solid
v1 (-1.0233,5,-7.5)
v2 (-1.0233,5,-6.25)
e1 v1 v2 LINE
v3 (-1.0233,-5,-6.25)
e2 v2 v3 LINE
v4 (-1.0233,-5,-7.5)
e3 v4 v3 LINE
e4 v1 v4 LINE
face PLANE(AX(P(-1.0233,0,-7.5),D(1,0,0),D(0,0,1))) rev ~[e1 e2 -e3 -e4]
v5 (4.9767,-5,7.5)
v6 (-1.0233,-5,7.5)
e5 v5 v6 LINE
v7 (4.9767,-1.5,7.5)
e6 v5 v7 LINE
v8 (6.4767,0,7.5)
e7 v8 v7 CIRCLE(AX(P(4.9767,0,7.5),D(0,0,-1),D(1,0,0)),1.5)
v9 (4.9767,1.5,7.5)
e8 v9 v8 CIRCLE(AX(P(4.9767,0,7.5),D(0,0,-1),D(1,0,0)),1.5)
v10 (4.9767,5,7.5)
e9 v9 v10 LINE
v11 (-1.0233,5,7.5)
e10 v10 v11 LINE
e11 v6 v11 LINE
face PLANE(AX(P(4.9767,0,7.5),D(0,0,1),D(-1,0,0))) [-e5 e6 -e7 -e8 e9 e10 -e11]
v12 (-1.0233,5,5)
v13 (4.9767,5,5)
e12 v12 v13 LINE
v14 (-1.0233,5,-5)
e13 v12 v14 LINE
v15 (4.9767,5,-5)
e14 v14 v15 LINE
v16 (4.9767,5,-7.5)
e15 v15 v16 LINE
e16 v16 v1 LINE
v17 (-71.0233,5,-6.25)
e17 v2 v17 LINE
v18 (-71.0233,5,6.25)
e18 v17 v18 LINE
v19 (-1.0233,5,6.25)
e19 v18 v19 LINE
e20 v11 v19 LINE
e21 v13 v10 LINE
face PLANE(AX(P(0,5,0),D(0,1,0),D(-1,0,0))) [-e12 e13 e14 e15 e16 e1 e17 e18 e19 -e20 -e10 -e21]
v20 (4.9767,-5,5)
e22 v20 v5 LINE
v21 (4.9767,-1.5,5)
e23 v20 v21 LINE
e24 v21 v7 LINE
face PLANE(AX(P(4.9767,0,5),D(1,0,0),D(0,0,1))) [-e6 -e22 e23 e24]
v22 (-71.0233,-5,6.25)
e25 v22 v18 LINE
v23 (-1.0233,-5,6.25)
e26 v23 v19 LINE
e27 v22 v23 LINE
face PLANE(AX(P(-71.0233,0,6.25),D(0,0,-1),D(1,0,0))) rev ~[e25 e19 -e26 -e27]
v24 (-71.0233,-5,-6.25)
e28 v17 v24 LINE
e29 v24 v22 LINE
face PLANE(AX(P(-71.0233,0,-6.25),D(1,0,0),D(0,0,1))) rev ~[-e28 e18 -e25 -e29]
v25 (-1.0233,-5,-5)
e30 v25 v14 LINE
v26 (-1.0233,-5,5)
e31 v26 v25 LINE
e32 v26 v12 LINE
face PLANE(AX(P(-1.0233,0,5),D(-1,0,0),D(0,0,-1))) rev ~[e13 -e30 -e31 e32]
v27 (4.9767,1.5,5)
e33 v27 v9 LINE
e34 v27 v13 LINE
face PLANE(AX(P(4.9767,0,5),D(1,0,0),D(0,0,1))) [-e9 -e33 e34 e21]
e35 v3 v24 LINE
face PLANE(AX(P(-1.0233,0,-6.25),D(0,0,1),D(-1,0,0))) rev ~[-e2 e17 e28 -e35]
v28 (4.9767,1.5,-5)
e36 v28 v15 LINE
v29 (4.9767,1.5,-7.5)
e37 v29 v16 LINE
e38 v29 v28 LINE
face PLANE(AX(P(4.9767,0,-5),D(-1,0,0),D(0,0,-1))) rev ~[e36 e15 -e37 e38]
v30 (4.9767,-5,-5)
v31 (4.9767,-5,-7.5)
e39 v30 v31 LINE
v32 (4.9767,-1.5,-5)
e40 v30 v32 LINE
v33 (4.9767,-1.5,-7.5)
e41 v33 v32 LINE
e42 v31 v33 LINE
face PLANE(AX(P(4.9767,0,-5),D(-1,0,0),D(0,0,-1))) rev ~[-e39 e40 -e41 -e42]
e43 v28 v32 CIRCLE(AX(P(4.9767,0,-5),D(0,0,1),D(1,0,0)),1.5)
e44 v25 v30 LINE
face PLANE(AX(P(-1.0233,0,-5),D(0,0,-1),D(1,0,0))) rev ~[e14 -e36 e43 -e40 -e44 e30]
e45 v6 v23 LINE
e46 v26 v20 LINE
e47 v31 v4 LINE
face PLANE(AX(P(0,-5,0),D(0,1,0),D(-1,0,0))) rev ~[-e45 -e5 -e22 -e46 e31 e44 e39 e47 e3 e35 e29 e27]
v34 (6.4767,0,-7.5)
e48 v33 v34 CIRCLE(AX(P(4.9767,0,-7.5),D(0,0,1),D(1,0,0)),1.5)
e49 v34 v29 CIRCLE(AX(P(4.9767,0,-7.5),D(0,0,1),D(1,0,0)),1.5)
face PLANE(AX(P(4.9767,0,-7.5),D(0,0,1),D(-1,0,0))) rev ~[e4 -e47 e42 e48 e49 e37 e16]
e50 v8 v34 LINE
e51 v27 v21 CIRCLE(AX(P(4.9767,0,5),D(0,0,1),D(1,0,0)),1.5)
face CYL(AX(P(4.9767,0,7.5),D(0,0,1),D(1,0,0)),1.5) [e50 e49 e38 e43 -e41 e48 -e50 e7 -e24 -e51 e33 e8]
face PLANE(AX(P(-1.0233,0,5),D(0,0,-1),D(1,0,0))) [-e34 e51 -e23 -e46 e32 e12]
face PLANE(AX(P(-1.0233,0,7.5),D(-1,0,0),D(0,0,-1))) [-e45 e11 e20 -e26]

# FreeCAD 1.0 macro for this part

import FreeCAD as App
import Part
import Sketcher

V = App.Vector


def add_polygon(sketch, points):
    """Adds a closed chain of lines whose ends are joined by coincident constraints."""
    first, n = sketch.GeometryCount, len(points)
    for a, b in zip(points, points[1:] + points[:1]):
        sketch.addGeometry(Part.LineSegment(App.Vector(*a, 0), App.Vector(*b, 0)), False)
    for i in range(n):
        sketch.addConstraint(Sketcher.Constraint("Coincident", first + i, 2, first + (i + 1) % n, 1))

doc = App.newDocument("Part")
body = doc.addObject("PartDesign::Body", "Body")

sketch1 = doc.addObject("Sketcher::SketchObject", "Sketch")
body.addObject(sketch1)
sketch1.AttachmentSupport = (doc.XZ_Plane, [""])
sketch1.MapMode = "FlatFace"
add_polygon(sketch1, [(-71, -6.2), (-71, 6.2), (-1, 6.2), (-1, 7.5), (5, 7.5), (5, 5), (-1, 5), (-1, -5), (5, -5), (5, -7.5), (-1, -7.5), (-1, -6.2)])
sketch1.addConstraint(Sketcher.Constraint("Vertical", 0))
sketch1.addConstraint(Sketcher.Constraint("Horizontal", 1))
sketch1.addConstraint(Sketcher.Constraint("Vertical", 2))
sketch1.addConstraint(Sketcher.Constraint("Horizontal", 3))
sketch1.addConstraint(Sketcher.Constraint("Vertical", 4))
sketch1.addConstraint(Sketcher.Constraint("Horizontal", 5))
sketch1.addConstraint(Sketcher.Constraint("Vertical", 6))
sketch1.addConstraint(Sketcher.Constraint("Horizontal", 7))
sketch1.addConstraint(Sketcher.Constraint("Vertical", 8))
sketch1.addConstraint(Sketcher.Constraint("Horizontal", 9))
sketch1.addConstraint(Sketcher.Constraint("Vertical", 10))
sketch1.addConstraint(Sketcher.Constraint("Horizontal", 11))
sketch1.addConstraint(Sketcher.Constraint("Symmetric", 4, 2, 7, 2, -1))
sketch1.addConstraint(Sketcher.Constraint("Symmetric", 2, 2, 9, 2, -1))
sketch1.addConstraint(Sketcher.Constraint("Vertical", 2, 2, 5, 2))
sketch1.addConstraint(Sketcher.Constraint("Equal", 2, 10))
sketch1.addConstraint(Sketcher.Constraint("DistanceX", 1, 1, 1, 2, 70.0))
sketch1.addConstraint(Sketcher.Constraint("DistanceX", 3, 1, 3, 2, 6.0))
sketch1.addConstraint(Sketcher.Constraint("DistanceY", 6, 2, 6, 1, 10.0))
sketch1.addConstraint(Sketcher.Constraint("DistanceY", 0, 1, 0, 2, 12.5))
sketch1.addConstraint(Sketcher.Constraint("DistanceY", 4, 2, 4, 1, 2.5))
sketch1.addConstraint(Sketcher.Constraint("DistanceX", 0, 2, -1, 1, 71.0233))
pad1 = doc.addObject("PartDesign::Pad", "Pad")
body.addObject(pad1)
pad1.Profile = sketch1
pad1.Length = 10
pad1.Midplane = True

sketch2 = doc.addObject("Sketcher::SketchObject", "Sketch001")
body.addObject(sketch2)
sketch2.AttachmentSupport = (doc.XY_Plane, [""])
sketch2.MapMode = "FlatFace"
sketch2.AttachmentOffset = App.Placement(V(0, 0, 7.5), App.Rotation())
sketch2.addGeometry(Part.Circle(V(5, 0, 0), V(0, 0, 1), 1.5), False)
sketch2.addConstraint(Sketcher.Constraint("PointOnObject", 0, 3, -1))
sketch2.addConstraint(Sketcher.Constraint("Diameter", 0, 3.0))
sketch2.addConstraint(Sketcher.Constraint("DistanceX", -1, 1, 0, 3, 4.9767))
pad2 = doc.addObject("PartDesign::Pad", "Pad001")
body.addObject(pad2)
pad2.Profile = sketch2
pad2.Length = 15
pad2.Reversed = True

doc.recompute()
